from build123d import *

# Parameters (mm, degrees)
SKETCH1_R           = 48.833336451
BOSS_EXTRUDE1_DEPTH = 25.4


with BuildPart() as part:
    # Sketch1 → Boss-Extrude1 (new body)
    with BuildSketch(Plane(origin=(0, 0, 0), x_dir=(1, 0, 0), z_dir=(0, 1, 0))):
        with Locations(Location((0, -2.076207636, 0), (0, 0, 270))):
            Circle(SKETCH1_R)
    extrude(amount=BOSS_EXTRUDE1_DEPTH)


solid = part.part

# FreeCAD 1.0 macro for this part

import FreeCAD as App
import Part
import Sketcher
Q = App.Units.Quantity

doc = App.newDocument("Part")
body = doc.addObject("PartDesign::Body", "Body")

# Sketch on XZ plane
sketch1 = body.newObject("Sketcher::SketchObject", "Sketch")
sketch1.AttachmentSupport = (doc.getObject("XZ_Plane"), [""])
sketch1.MapMode = "FlatFace"
sketch1.addGeometry(Part.Circle(App.Vector(0, 2.076208, 0), App.Vector(0, 0, 1), 48.833336), False)
sketch1.addConstraint([
    Sketcher.Constraint("PointOnObject", 0, 3, -2),
    Sketcher.Constraint("Diameter", 0, Q("97.666673 mm")),
    Sketcher.Constraint("DistanceY", -1, 1, 0, 3, Q("2.076208 mm")),
])
pad1 = body.newObject("PartDesign::Pad", "Pad")
pad1.Profile = sketch1
pad1.Length = Q("1 in")
pad1.Reversed = True

doc.recompute()
